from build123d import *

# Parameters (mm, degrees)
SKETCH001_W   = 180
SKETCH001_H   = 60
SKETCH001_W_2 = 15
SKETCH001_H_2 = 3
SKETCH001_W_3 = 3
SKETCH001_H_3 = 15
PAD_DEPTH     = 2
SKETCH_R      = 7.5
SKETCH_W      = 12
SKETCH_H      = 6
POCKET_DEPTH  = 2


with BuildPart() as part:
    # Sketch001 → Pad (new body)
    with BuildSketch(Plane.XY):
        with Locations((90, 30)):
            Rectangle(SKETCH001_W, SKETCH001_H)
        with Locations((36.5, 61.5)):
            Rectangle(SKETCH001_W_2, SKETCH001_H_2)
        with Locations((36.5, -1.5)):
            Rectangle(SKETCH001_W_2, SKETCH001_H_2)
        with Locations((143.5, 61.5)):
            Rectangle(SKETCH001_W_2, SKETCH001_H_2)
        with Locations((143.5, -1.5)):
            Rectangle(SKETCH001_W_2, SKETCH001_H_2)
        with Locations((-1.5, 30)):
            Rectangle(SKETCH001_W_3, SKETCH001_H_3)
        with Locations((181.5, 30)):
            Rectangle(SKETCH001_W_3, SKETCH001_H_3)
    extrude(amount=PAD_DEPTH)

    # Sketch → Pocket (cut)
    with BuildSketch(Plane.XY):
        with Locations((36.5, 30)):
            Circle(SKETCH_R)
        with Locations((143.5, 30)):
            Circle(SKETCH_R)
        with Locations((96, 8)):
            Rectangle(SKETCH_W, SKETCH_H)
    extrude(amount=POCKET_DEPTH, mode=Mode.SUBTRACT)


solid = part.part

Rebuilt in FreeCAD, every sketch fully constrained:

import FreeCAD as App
import Part
import Sketcher

V = App.Vector
Q = App.Units.Quantity


def add_polygon(sketch, points):
    """Adds a closed chain of lines whose ends are joined by coincident constraints."""
    first, n = sketch.GeometryCount, len(points)
    for a, b in zip(points, points[1:] + points[:1]):
        sketch.addGeometry(Part.LineSegment(App.Vector(*a, 0), App.Vector(*b, 0)), False)
    for i in range(n):
        sketch.addConstraint(Sketcher.Constraint("Coincident", first + i, 2, first + (i + 1) % n, 1))

doc = App.newDocument("Part")
body = doc.addObject("PartDesign::Body", "Body")

sketch1 = body.newObject("Sketcher::SketchObject", "Sketch")
sketch1.AttachmentSupport = (doc.getObject("XY_Plane"), [""])
sketch1.MapMode = "FlatFace"
add_polygon(sketch1, [(0, 22.5), (0, 0), (29, 0), (29, -3), (44, -3), (44, 0), (136, 0), (136, -3), (151, -3), (151, 0), (180, 0), (180, 22.5), (183, 22.5), (183, 37.5), (180, 37.5), (180, 60), (151, 60), (151, 63), (136, 63), (136, 60), (44, 60), (44, 63), (29, 63), (29, 60), (0, 60), (0, 37.5), (-3, 37.5), (-3, 22.5)])
sketch1.addConstraint([
    Sketcher.Constraint("Vertical", 0),
    Sketcher.Constraint("Horizontal", 1),
    Sketcher.Constraint("Vertical", 2),
    Sketcher.Constraint("Horizontal", 3),
    Sketcher.Constraint("Vertical", 4),
    Sketcher.Constraint("Horizontal", 5),
    Sketcher.Constraint("Vertical", 6),
    Sketcher.Constraint("Horizontal", 7),
    Sketcher.Constraint("Vertical", 8),
    Sketcher.Constraint("Horizontal", 9),
    Sketcher.Constraint("Vertical", 10),
    Sketcher.Constraint("Horizontal", 11),
    Sketcher.Constraint("Vertical", 12),
    Sketcher.Constraint("Horizontal", 13),
    Sketcher.Constraint("Vertical", 14),
    Sketcher.Constraint("Horizontal", 15),
    Sketcher.Constraint("Vertical", 16),
    Sketcher.Constraint("Horizontal", 17),
    Sketcher.Constraint("Vertical", 18),
    Sketcher.Constraint("Horizontal", 19),
    Sketcher.Constraint("Vertical", 20),
    Sketcher.Constraint("Horizontal", 21),
    Sketcher.Constraint("Vertical", 22),
    Sketcher.Constraint("Horizontal", 23),
    Sketcher.Constraint("Vertical", 24),
    Sketcher.Constraint("Horizontal", 25),
    Sketcher.Constraint("Vertical", 26),
    Sketcher.Constraint("Horizontal", 27),
    Sketcher.Constraint("Coincident", 0, 2, -1, 1),
    Sketcher.Constraint("PointOnObject", 4, 2, -1),
    Sketcher.Constraint("PointOnObject", 8, 2, -1),
    Sketcher.Constraint("PointOnObject", 23, 2, -2),
    Sketcher.Constraint("Horizontal", 3, 2, 6, 2),
    Sketcher.Constraint("Horizontal", 15, 2, 18, 2),
    Sketcher.Constraint("Horizontal", 17, 2, 20, 2),
    Sketcher.Constraint("Horizontal", 19, 2, 22, 2),
    Sketcher.Constraint("Horizontal", 13, 2, 24, 2),
    Sketcher.Constraint("Horizontal", 11, 2, 26, 2),
    Sketcher.Constraint("Vertical", 10, 2, 13, 2),
    Sketcher.Constraint("Vertical", 8, 2, 15, 2),
    Sketcher.Constraint("Vertical", 6, 2, 17, 2),
    Sketcher.Constraint("Vertical", 4, 2, 19, 2),
    Sketcher.Constraint("Vertical", 2, 2, 21, 2),
    Sketcher.Constraint("Equal", 3, 7),
    Sketcher.Constraint("Equal", 1, 9),
    Sketcher.Constraint("Equal", 13, 25),
    Sketcher.Constraint("Equal", 27, 2),
    Sketcher.Constraint("Equal", 21, 12),
    Sketcher.Constraint("Equal", 10, 14),
    Sketcher.Constraint("Equal", 8, 16),
    Sketcher.Constraint("DistanceX", 1, 1, 1, 2, Q("29 mm")),
    Sketcher.Constraint("DistanceX", 3, 1, 3, 2, Q("15 mm")),
    Sketcher.Constraint("DistanceX", 5, 1, 5, 2, Q("92 mm")),
    Sketcher.Constraint("DistanceX", 11, 1, 11, 2, Q("3 mm")),
    Sketcher.Constraint("DistanceY", 0, 2, 0, 1, Q("22.5 mm")),
])
pad1 = body.newObject("PartDesign::Pad", "Pad")
pad1.Profile = sketch1
pad1.Length = 2

sketch2 = body.newObject("Sketcher::SketchObject", "Sketch001")
sketch2.AttachmentSupport = (doc.getObject("XY_Plane"), [""])
sketch2.MapMode = "FlatFace"
sketch2.addGeometry(Part.Circle(V(36.5, 30, 0), V(0, 0, 1), 7.5), False)
sketch2.addGeometry(Part.Circle(V(143.5, 30, 0), V(0, 0, 1), 7.5), False)
add_polygon(sketch2, [(90, 11), (90, 5), (102, 5), (102, 11)])
sketch2.addConstraint([
    Sketcher.Constraint("Vertical", 2),
    Sketcher.Constraint("Horizontal", 3),
    Sketcher.Constraint("Vertical", 4),
    Sketcher.Constraint("Horizontal", 5),
    Sketcher.Constraint("Equal", 0, 1),
    Sketcher.Constraint("Horizontal", 0, 3, 1, 3),
    Sketcher.Constraint("Diameter", 0, Q("15 mm")),
    Sketcher.Constraint("DistanceX", 3, 1, 3, 2, Q("12 mm")),
    Sketcher.Constraint("DistanceY", 2, 2, 2, 1, Q("6 mm")),
    Sketcher.Constraint("DistanceY", -1, 1, 0, 3, Q("30 mm")),
    Sketcher.Constraint("DistanceX", -1, 1, 2, 2, Q("90 mm")),
    Sketcher.Constraint("DistanceY", -1, 1, 2, 2, Q("5 mm")),
    Sketcher.Constraint("DistanceX", 0, 3, 1, 3, Q("107 mm")),
    Sketcher.Constraint("DistanceX", -1, 1, 0, 3, Q("36.5 mm")),
])
pocket1 = body.newObject("PartDesign::Pocket", "Pocket")
pocket1.Profile = sketch2
pocket1.Length = 2
pocket1.Reversed = True

doc.recompute()
